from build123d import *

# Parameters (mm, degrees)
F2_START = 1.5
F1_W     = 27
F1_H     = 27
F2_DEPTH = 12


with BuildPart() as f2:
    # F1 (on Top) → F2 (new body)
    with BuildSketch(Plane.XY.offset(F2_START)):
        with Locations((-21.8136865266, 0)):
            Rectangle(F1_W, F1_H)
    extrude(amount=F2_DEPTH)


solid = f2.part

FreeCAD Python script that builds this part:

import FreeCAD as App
import Part
import Sketcher
from FreeCAD import Vector


def add_polygon(sketch, points):
    """Adds a closed chain of lines whose ends are joined by coincident constraints."""
    first, n = sketch.GeometryCount, len(points)
    for a, b in zip(points, points[1:] + points[:1]):
        sketch.addGeometry(Part.LineSegment(App.Vector(*a, 0), App.Vector(*b, 0)), False)
    for i in range(n):
        sketch.addConstraint(Sketcher.Constraint("Coincident", first + i, 2, first + (i + 1) % n, 1))

doc = App.newDocument("Part")
body = doc.addObject("PartDesign::Body", "Body")

# Sketch on XY plane
sketch1 = body.newObject("Sketcher::SketchObject", "Sketch")
sketch1.AttachmentSupport = (doc.getObject("XY_Plane"), [""])
sketch1.MapMode = "FlatFace"
sketch1.AttachmentOffset = App.Placement(Vector(0, 0, 1.5), App.Rotation())
add_polygon(sketch1, [(-35.313687, 13.5), (-35.313687, -13.5), (-8.313687, -13.5), (-8.313687, 13.5)])  # lines 0-3
sketch1.addConstraint([
    Sketcher.Constraint("Vertical", 0),
    Sketcher.Constraint("Horizontal", 1),
    Sketcher.Constraint("Vertical", 2),
    Sketcher.Constraint("Horizontal", 3),
    Sketcher.Constraint("Equal", 3, 0),
    Sketcher.Constraint("DistanceX", 1, 1, 1, 2, 27.0),
    Sketcher.Constraint("DistanceY", 0, 2, -1, 1, 13.5),
    Sketcher.Constraint("DistanceX", 0, 2, -1, 1, 35.313687),
])
pad1 = body.newObject("PartDesign::Pad", "Pad")
pad1.Profile = sketch1
pad1.Length = 12

doc.recompute()
